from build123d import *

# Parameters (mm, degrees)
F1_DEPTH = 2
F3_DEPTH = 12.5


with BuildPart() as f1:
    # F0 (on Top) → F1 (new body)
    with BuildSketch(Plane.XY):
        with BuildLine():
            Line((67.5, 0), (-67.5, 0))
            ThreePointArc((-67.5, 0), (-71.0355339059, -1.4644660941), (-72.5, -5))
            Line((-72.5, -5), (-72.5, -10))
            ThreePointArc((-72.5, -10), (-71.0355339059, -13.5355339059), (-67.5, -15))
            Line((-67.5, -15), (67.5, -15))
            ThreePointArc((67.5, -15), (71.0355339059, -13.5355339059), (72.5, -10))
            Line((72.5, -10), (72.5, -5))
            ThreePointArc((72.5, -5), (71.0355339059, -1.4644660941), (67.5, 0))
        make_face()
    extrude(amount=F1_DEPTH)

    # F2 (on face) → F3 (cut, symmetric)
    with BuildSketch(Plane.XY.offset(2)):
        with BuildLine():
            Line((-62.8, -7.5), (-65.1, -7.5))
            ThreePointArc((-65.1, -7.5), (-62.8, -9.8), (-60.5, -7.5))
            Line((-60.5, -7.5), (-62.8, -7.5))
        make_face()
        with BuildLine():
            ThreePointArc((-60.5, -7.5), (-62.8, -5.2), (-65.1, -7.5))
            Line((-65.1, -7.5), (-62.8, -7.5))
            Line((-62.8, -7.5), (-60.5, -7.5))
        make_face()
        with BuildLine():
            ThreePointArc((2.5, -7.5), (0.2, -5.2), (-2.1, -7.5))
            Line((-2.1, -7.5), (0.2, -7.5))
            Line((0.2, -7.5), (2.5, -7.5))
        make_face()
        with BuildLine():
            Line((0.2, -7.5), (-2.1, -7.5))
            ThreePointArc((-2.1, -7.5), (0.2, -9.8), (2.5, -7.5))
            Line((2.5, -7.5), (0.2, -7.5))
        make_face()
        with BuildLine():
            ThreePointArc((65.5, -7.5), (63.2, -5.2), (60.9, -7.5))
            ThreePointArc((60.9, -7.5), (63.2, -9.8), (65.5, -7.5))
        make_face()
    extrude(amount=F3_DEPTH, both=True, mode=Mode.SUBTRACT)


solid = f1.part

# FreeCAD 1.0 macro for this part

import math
import FreeCAD as App
import Part
import Sketcher

doc = App.newDocument("Part")
body = doc.addObject("PartDesign::Body", "Body")

sketch1 = body.newObject("Sketcher::SketchObject", "Sketch")
sketch1.AttachmentSupport = (doc.getObject("XY_Plane"), [""])
sketch1.MapMode = "FlatFace"
sketch1.addGeometry([
    Part.LineSegment(App.Vector(68, 0, 0), App.Vector(-68, 0, 0)),
    Part.ArcOfCircle(Part.Circle(App.Vector(-68, -5, 0), App.Vector(0, 0, 1), 5), math.radians(90), math.radians(180)),
    Part.LineSegment(App.Vector(-72, -5, 0), App.Vector(-72, -10, 0)),
    Part.ArcOfCircle(Part.Circle(App.Vector(-68, -10, 0), App.Vector(0, 0, 1), 5), math.radians(180), math.radians(270)),
    Part.LineSegment(App.Vector(-68, -15, 0), App.Vector(68, -15, 0)),
    Part.ArcOfCircle(Part.Circle(App.Vector(68, -10, 0), App.Vector(0, 0, 1), 5), math.radians(-90), math.radians(0)),
    Part.LineSegment(App.Vector(72, -10, 0), App.Vector(72, -5, 0)),
    Part.ArcOfCircle(Part.Circle(App.Vector(68, -5, 0), App.Vector(0, 0, 1), 5), math.radians(0), math.radians(90)),
], False)
sketch1.addConstraint([
    Sketcher.Constraint("Tangent", 0, 2, 1, 1),
    Sketcher.Constraint("Tangent", 1, 2, 2, 1),
    Sketcher.Constraint("Tangent", 2, 2, 3, 1),
    Sketcher.Constraint("Tangent", 3, 2, 4, 1),
    Sketcher.Constraint("Tangent", 4, 2, 5, 1),
    Sketcher.Constraint("Tangent", 5, 2, 6, 1),
    Sketcher.Constraint("Tangent", 6, 2, 7, 1),
    Sketcher.Constraint("Tangent", 7, 2, 0, 1),
    Sketcher.Constraint("Horizontal", 0),
    Sketcher.Constraint("Vertical", 2),
    Sketcher.Constraint("Horizontal", 4),
    Sketcher.Constraint("Vertical", 6),
    Sketcher.Constraint("Equal", 1, 3),
    Sketcher.Constraint("Equal", 3, 5),
    Sketcher.Constraint("Equal", 5, 7),
    Sketcher.Constraint("Symmetric", 0, 2, 7, 2, -1, 1),
    Sketcher.Constraint("Radius", 1, 5.0),
    Sketcher.Constraint("DistanceX", 0, 2, 0, 1, 135.0),
    Sketcher.Constraint("DistanceY", 2, 2, 2, 1, 5.0),
])
pad1 = body.newObject("PartDesign::Pad", "Pad")
pad1.Profile = sketch1
pad1.Length = 2

sketch2 = body.newObject("Sketcher::SketchObject", "Sketch001")
sketch2.AttachmentSupport = (doc.getObject("XY_Plane"), [""])
sketch2.MapMode = "FlatFace"
sketch2.AttachmentOffset = App.Placement(App.Vector(0, 0, 2), App.Rotation())
sketch2.addGeometry([
    Part.Circle(App.Vector(-62.8, -7.5, 0), App.Vector(0, 0, 1), 2.3),
    Part.Circle(App.Vector(0.2, -7.5, 0), App.Vector(0, 0, 1), 2.3),
    Part.Circle(App.Vector(63.2, -7.5, 0), App.Vector(0, 0, 1), 2.3),
], False)
sketch2.addConstraint([
    Sketcher.Constraint("Equal", 0, 1),
    Sketcher.Constraint("Equal", 1, 2),
    Sketcher.Constraint("Horizontal", 0, 3, 1, 3),
    Sketcher.Constraint("Horizontal", 1, 3, 2, 3),
    Sketcher.Constraint("Diameter", 0, 4.6),
    Sketcher.Constraint("DistanceX", 0, 3, 1, 3, 63.0),
    Sketcher.Constraint("DistanceX", 1, 3, 2, 3, 63.0),
    Sketcher.Constraint("DistanceX", 0, 3, -1, 1, 62.8),
    Sketcher.Constraint("DistanceY", 0, 3, -1, 1, 7.5),
])
pocket1 = body.newObject("PartDesign::Pocket", "Pocket")
pocket1.Profile = sketch2
pocket1.Length = 25
pocket1.Midplane = True

doc.recompute()
